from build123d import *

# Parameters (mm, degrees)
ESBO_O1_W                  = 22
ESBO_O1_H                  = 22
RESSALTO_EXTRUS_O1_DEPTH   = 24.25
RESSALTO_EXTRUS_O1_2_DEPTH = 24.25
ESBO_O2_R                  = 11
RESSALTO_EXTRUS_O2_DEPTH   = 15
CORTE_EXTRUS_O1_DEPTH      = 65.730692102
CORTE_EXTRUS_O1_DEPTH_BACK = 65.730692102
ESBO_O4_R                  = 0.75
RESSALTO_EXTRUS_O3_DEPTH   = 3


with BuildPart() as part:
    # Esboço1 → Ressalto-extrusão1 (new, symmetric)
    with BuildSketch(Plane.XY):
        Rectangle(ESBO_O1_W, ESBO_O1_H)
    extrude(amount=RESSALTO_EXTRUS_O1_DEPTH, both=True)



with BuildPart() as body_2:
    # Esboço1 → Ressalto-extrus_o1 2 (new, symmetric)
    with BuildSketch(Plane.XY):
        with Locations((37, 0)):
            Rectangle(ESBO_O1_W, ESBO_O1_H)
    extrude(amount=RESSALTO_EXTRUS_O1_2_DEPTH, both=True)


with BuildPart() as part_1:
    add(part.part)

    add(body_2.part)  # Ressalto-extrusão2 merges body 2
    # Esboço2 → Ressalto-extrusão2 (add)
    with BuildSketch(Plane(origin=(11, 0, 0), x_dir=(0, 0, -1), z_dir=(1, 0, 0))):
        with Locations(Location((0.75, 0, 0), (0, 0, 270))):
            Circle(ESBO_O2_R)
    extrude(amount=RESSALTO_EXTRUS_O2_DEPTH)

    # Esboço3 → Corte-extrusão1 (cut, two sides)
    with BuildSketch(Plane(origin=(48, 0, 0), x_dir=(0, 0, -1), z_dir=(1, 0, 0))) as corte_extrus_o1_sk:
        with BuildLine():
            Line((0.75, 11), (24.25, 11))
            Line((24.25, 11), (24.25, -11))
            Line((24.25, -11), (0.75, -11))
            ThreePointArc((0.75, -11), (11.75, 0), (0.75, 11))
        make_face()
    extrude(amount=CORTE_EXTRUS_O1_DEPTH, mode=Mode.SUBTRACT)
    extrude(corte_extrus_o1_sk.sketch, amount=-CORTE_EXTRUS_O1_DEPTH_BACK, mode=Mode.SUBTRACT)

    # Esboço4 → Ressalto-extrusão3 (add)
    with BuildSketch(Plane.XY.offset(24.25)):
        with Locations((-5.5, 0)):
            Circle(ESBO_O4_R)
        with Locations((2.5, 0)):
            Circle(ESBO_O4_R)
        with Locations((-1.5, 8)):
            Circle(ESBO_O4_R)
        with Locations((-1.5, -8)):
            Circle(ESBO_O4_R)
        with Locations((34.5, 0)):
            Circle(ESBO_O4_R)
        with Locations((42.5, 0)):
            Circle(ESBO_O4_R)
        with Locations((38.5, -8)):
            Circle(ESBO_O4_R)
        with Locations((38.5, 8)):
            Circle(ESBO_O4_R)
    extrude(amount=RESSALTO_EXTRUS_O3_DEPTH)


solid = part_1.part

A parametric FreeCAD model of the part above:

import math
import FreeCAD as App
import Part
import Sketcher

V = App.Vector

doc = App.newDocument("Part")
body = doc.addObject("PartDesign::Body", "Body")

# Sketch on XY plane
sketch1 = doc.addObject("Sketcher::SketchObject", "Sketch")
body.addObject(sketch1)
sketch1.AttachmentSupport = (doc.XY_Plane, [""])
sketch1.MapMode = "FlatFace"
sketch1.addGeometry([
    Part.LineSegment(V(-11, 11, 0), V(-11, -11, 0)),
    Part.LineSegment(V(-11, -11, 0), V(11, -11, 0)),
    Part.LineSegment(V(11, -11, 0), V(11, 11, 0)),
    Part.LineSegment(V(11, 11, 0), V(-11, 11, 0)),
], False)
sketch1.addConstraint([
    Sketcher.Constraint("Coincident", 0, 2, 1, 1),
    Sketcher.Constraint("Coincident", 1, 2, 2, 1),
    Sketcher.Constraint("Coincident", 2, 2, 3, 1),
    Sketcher.Constraint("Coincident", 3, 2, 0, 1),
    Sketcher.Constraint("Vertical", 0),
    Sketcher.Constraint("Horizontal", 1),
    Sketcher.Constraint("Vertical", 2),
    Sketcher.Constraint("Horizontal", 3),
    Sketcher.Constraint("Symmetric", 0, 2, 2, 2, -1, 1),
    Sketcher.Constraint("Equal", 3, 0),
    Sketcher.Constraint("DistanceX", 1, 1, 1, 2, 22.0),
])
pad1 = doc.addObject("PartDesign::Pad", "Pad")
body.addObject(pad1)
pad1.Profile = sketch1
pad1.Length = 48.5
pad1.Midplane = True
body2 = doc.addObject("PartDesign::Body", "Body001")

# Sketch on XY plane
sketch2 = doc.addObject("Sketcher::SketchObject", "Sketch001")
body2.addObject(sketch2)
sketch2.AttachmentSupport = (doc.getObject("XY_Plane001"), [""])
sketch2.MapMode = "FlatFace"
sketch2.addGeometry([
    Part.LineSegment(V(26, 11, 0), V(26, -11, 0)),
    Part.LineSegment(V(26, -11, 0), V(48, -11, 0)),
    Part.LineSegment(V(48, -11, 0), V(48, 11, 0)),
    Part.LineSegment(V(48, 11, 0), V(26, 11, 0)),
], False)
sketch2.addConstraint([
    Sketcher.Constraint("Coincident", 0, 2, 1, 1),
    Sketcher.Constraint("Coincident", 1, 2, 2, 1),
    Sketcher.Constraint("Coincident", 2, 2, 3, 1),
    Sketcher.Constraint("Coincident", 3, 2, 0, 1),
    Sketcher.Constraint("Vertical", 0),
    Sketcher.Constraint("Horizontal", 1),
    Sketcher.Constraint("Vertical", 2),
    Sketcher.Constraint("Horizontal", 3),
    Sketcher.Constraint("Equal", 3, 0),
    Sketcher.Constraint("DistanceX", 1, 1, 1, 2, 22.0),
    Sketcher.Constraint("DistanceX", -1, 1, 0, 2, 26.0),
    Sketcher.Constraint("DistanceY", 0, 2, -1, 1, 11.0),
])
pad2 = doc.addObject("PartDesign::Pad", "Pad001")
body2.addObject(pad2)
pad2.Profile = sketch2
pad2.Length = 48.5
pad2.Midplane = True
body.AllowCompound = True
doc.recompute()

boolean = doc.addObject("PartDesign::Boolean", "Boolean")
body.addObject(boolean)
boolean.Type = "Fuse"
boolean.addObjects([body2])

# Sketch on YZ plane
sketch3 = doc.addObject("Sketcher::SketchObject", "Sketch002")
body.addObject(sketch3)
sketch3.AttachmentSupport = (doc.YZ_Plane, [""])
sketch3.MapMode = "FlatFace"
sketch3.AttachmentOffset = App.Placement(V(0, 0, 11), App.Rotation())
sketch3.addGeometry(Part.Circle(V(0, -1, 0), V(0, 0, 1), 11), False)
sketch3.addConstraint([
    Sketcher.Constraint("PointOnObject", 0, 3, -2),
    Sketcher.Constraint("Diameter", 0, 22.0),
    Sketcher.Constraint("DistanceY", 0, 3, -1, 1, 0.75),
])
pad3 = doc.addObject("PartDesign::Pad", "Pad002")
body.addObject(pad3)
pad3.Profile = sketch3
pad3.Length = 15

# Sketch on YZ plane
sketch4 = doc.addObject("Sketcher::SketchObject", "Sketch003")
body.addObject(sketch4)
sketch4.AttachmentSupport = (doc.YZ_Plane, [""])
sketch4.MapMode = "FlatFace"
sketch4.AttachmentOffset = App.Placement(V(0, 0, 48), App.Rotation())
sketch4.addGeometry([
    Part.LineSegment(V(11, -24, 0), V(11, -1, 0)),
    Part.ArcOfCircle(Part.Circle(V(0, -1, 0), V(0, 0, 1), 11), math.radians(180), math.radians(360)),
    Part.LineSegment(V(-11, -1, 0), V(-11, -24, 0)),
    Part.LineSegment(V(-11, -24, 0), V(11, -24, 0)),
], False)
sketch4.addConstraint([
    Sketcher.Constraint("Tangent", 0, 2, 1, 2),
    Sketcher.Constraint("Tangent", 1, 1, 2, 1),
    Sketcher.Constraint("Coincident", 2, 2, 3, 1),
    Sketcher.Constraint("Coincident", 3, 2, 0, 1),
    Sketcher.Constraint("Vertical", 0),
    Sketcher.Constraint("Vertical", 2),
    Sketcher.Constraint("Horizontal", 3),
    Sketcher.Constraint("PointOnObject", 1, 3, -2),
    Sketcher.Constraint("Radius", 1, 11.0),
    Sketcher.Constraint("DistanceY", 0, 1, 0, 2, 23.5),
    Sketcher.Constraint("DistanceY", 1, 3, -1, 1, 0.75),
])
pocket1 = doc.addObject("PartDesign::Pocket", "Pocket")
body.addObject(pocket1)
pocket1.Profile = sketch4
pocket1.Type = "ThroughAll"
pocket1.Midplane = True

# Sketch on XY plane
sketch5 = doc.addObject("Sketcher::SketchObject", "Sketch004")
body.addObject(sketch5)
sketch5.AttachmentSupport = (doc.XY_Plane, [""])
sketch5.MapMode = "FlatFace"
sketch5.AttachmentOffset = App.Placement(V(0, 0, 24.25), App.Rotation())
sketch5.addGeometry([
    Part.Circle(V(-5.5, 0, 0), V(0, 0, 1), 0.8),  # 0
    Part.Circle(V(2.5, 0, 0), V(0, 0, 1), 0.8),  # 1
    Part.Circle(V(-1.5, 8, 0), V(0, 0, 1), 0.8),  # 2
    Part.Circle(V(-1.5, -8, 0), V(0, 0, 1), 0.8),  # 3
    Part.Circle(V(34.5, 0, 0), V(0, 0, 1), 0.8),  # 4
    Part.Circle(V(42.5, 0, 0), V(0, 0, 1), 0.8),  # 5
    Part.Circle(V(38.5, -8, 0), V(0, 0, 1), 0.8),  # 6
    Part.Circle(V(38.5, 8, 0), V(0, 0, 1), 0.8),  # 7
], False)
sketch5.addConstraint([
    Sketcher.Constraint("Equal", 0, 1),
    Sketcher.Constraint("Equal", 1, 2),
    Sketcher.Constraint("Equal", 2, 3),
    Sketcher.Constraint("Equal", 3, 4),
    Sketcher.Constraint("Equal", 4, 5),
    Sketcher.Constraint("Equal", 5, 6),
    Sketcher.Constraint("Equal", 6, 7),
    Sketcher.Constraint("Symmetric", 2, 3, 3, 3, -1),
    Sketcher.Constraint("Symmetric", 6, 3, 7, 3, -1),
    Sketcher.Constraint("PointOnObject", 0, 3, -1),
    Sketcher.Constraint("PointOnObject", 1, 3, -1),
    Sketcher.Constraint("PointOnObject", 4, 3, -1),
    Sketcher.Constraint("PointOnObject", 5, 3, -1),
    Sketcher.Constraint("Horizontal", 3, 3, 6, 3),
    Sketcher.Constraint("Diameter", 0, 1.5),
    Sketcher.Constraint("DistanceY", -1, 1, 2, 3, 8.0),
    Sketcher.Constraint("DistanceX", 0, 3, 1, 3, 8.0),
    Sketcher.Constraint("DistanceX", 0, 3, 2, 3, 4.0),
    Sketcher.Constraint("DistanceX", 1, 3, 4, 3, 32.0),
    Sketcher.Constraint("DistanceX", 4, 3, 5, 3, 8.0),
    Sketcher.Constraint("DistanceX", 4, 3, 6, 3, 4.0),
    Sketcher.Constraint("DistanceX", 0, 3, -1, 1, 5.5),
])
pad4 = doc.addObject("PartDesign::Pad", "Pad003")
body.addObject(pad4)
pad4.Profile = sketch5
pad4.Length = 3

doc.recompute()
